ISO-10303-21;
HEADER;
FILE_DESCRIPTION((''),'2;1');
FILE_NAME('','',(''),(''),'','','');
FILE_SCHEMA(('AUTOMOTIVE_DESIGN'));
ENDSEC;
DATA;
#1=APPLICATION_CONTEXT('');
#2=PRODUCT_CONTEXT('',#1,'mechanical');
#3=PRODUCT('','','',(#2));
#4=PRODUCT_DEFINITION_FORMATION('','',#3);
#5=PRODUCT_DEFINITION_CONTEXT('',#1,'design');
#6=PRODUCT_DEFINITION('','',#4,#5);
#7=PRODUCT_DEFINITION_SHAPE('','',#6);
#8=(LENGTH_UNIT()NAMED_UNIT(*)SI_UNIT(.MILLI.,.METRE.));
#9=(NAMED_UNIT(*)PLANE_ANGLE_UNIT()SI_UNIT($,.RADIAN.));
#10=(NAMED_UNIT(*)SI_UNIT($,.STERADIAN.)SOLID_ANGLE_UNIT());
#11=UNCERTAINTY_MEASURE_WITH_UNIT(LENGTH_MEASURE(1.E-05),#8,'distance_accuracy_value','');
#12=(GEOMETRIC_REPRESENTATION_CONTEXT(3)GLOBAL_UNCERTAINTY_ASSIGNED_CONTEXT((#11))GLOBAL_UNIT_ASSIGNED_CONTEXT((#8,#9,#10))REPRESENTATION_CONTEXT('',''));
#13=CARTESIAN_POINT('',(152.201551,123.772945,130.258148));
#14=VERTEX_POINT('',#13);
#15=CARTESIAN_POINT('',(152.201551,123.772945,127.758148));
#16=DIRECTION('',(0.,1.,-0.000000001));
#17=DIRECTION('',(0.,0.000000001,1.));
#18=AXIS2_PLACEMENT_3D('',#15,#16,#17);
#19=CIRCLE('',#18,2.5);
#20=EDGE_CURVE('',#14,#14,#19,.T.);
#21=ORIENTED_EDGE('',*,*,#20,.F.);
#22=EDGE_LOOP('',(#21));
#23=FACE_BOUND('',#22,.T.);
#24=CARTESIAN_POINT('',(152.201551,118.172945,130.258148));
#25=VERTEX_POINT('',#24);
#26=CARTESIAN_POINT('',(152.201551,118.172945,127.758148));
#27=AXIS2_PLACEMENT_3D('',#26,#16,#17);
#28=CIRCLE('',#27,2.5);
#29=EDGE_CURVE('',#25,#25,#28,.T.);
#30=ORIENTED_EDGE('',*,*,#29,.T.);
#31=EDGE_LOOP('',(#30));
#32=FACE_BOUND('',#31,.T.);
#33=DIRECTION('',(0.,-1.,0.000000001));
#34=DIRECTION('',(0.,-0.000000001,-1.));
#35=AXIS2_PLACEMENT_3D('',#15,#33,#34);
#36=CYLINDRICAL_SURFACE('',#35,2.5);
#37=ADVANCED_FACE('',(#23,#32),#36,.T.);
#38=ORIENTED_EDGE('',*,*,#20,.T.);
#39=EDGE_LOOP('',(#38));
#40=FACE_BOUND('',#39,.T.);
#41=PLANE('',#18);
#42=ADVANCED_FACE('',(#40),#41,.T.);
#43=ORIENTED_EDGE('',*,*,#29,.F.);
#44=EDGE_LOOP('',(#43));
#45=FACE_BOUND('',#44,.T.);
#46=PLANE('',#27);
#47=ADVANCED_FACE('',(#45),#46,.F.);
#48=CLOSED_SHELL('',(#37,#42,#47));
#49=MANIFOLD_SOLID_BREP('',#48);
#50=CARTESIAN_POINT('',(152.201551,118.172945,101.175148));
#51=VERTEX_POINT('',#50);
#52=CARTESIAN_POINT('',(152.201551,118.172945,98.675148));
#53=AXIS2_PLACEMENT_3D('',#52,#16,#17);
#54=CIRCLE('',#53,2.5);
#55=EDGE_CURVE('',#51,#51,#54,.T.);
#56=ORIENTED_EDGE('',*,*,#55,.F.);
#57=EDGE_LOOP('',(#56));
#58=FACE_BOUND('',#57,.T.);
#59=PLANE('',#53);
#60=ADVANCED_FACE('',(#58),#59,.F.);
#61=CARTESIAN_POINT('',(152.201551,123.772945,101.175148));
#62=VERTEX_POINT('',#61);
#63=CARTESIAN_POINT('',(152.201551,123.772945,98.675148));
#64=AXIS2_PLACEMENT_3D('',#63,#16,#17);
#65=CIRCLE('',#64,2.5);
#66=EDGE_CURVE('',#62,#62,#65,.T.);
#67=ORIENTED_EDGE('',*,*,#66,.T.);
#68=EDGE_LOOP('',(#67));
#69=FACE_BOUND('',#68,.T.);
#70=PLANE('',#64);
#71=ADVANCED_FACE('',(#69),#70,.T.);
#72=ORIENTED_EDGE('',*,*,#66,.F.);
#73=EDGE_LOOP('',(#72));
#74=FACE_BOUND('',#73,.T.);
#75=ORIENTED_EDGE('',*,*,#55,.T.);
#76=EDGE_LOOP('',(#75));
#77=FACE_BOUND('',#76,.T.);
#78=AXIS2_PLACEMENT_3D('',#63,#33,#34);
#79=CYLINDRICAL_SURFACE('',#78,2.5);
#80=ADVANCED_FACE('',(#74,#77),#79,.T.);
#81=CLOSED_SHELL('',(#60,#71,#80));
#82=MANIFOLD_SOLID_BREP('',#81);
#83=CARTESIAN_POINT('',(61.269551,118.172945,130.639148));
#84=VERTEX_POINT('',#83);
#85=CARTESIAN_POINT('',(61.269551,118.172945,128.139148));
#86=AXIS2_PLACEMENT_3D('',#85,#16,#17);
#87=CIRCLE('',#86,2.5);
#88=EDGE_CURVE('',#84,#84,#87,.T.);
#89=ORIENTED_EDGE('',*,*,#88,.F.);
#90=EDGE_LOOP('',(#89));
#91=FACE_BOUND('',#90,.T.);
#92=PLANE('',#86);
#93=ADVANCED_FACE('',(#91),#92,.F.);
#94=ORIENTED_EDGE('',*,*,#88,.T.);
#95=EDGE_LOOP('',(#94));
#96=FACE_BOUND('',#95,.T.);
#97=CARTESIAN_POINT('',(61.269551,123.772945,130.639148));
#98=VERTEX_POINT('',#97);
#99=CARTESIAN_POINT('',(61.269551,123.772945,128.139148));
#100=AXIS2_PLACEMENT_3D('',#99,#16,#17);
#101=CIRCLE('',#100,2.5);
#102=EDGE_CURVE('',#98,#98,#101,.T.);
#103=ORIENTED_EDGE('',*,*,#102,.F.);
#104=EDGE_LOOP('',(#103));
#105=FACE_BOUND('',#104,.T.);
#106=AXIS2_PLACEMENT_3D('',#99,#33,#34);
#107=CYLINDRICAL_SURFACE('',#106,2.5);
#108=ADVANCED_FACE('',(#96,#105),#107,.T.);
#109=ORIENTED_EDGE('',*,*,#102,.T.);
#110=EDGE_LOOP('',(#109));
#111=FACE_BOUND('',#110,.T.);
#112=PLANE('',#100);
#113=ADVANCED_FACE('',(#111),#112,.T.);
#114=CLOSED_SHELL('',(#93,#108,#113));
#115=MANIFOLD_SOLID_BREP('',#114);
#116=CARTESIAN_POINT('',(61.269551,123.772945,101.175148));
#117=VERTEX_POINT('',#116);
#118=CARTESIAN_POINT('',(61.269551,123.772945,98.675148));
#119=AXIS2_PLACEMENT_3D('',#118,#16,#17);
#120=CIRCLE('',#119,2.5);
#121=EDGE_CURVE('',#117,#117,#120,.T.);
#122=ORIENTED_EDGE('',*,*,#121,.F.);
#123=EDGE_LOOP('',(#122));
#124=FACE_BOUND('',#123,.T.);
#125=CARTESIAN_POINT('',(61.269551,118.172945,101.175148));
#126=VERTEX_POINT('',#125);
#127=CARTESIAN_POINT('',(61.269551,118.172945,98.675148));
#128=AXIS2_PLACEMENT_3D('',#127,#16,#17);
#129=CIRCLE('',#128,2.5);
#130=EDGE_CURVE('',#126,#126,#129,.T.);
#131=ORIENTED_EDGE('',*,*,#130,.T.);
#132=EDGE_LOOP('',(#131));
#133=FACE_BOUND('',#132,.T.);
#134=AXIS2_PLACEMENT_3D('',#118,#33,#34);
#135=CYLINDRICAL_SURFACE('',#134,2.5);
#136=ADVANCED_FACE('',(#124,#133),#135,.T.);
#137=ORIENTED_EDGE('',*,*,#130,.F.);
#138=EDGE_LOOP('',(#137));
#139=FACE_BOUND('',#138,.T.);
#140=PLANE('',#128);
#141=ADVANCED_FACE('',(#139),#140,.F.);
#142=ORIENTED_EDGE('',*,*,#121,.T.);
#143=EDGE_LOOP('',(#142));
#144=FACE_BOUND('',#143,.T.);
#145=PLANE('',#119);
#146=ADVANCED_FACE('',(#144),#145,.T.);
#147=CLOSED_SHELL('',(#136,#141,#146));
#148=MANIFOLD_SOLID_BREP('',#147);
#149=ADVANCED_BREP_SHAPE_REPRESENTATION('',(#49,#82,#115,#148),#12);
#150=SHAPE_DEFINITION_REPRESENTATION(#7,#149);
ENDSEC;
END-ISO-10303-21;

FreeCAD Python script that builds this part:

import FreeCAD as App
import Part
import Sketcher

V = App.Vector

doc = App.newDocument("Part")
body = doc.addObject("PartDesign::Body", "Body")

# Sketch on XZ plane
sketch1 = body.newObject("Sketcher::SketchObject", "Sketch")
sketch1.AttachmentSupport = (doc.getObject("XZ_Plane"), [""])
sketch1.MapMode = "FlatFace"
sketch1.AttachmentOffset = App.Placement(V(0, 0, -118.172945), App.Rotation())
sketch1.addGeometry(Part.Circle(V(152.2, 98.7, 0), V(0, 0, 1), 2.5), False)
sketch1.addConstraint([
    Sketcher.Constraint("Diameter", 0, 5.0),
    Sketcher.Constraint("DistanceX", -1, 1, 0, 3, 152.201551),
    Sketcher.Constraint("DistanceY", -1, 1, 0, 3, 98.675148),
])
pad1 = body.newObject("PartDesign::Pad", "Pad")
pad1.Profile = sketch1
pad1.Length = 5.6
pad1.Reversed = True
body2 = doc.addObject("PartDesign::Body", "Body001")

# Sketch on XZ plane
sketch2 = body2.newObject("Sketcher::SketchObject", "Sketch001")
sketch2.AttachmentSupport = (doc.getObject("XZ_Plane001"), [""])
sketch2.MapMode = "FlatFace"
sketch2.AttachmentOffset = App.Placement(V(0, 0, -118.172945), App.Rotation())
sketch2.addGeometry(Part.Circle(V(61.3, 98.7, 0), V(0, 0, 1), 2.5), False)
sketch2.addConstraint([
    Sketcher.Constraint("Diameter", 0, 5.0),
    Sketcher.Constraint("DistanceX", -1, 1, 0, 3, 61.269551),
    Sketcher.Constraint("DistanceY", -1, 1, 0, 3, 98.675148),
])
pad2 = body2.newObject("PartDesign::Pad", "Pad001")
pad2.Profile = sketch2
pad2.Length = 5.6
pad2.Reversed = True
body3 = doc.addObject("PartDesign::Body", "Body002")

# Sketch on XZ plane
sketch3 = body3.newObject("Sketcher::SketchObject", "Sketch002")
sketch3.AttachmentSupport = (doc.getObject("XZ_Plane002"), [""])
sketch3.MapMode = "FlatFace"
sketch3.AttachmentOffset = App.Placement(V(0, 0, -118.172945), App.Rotation())
sketch3.addGeometry(Part.Circle(V(61.3, 128.1, 0), V(0, 0, 1), 2.5), False)
sketch3.addConstraint([
    Sketcher.Constraint("Diameter", 0, 5.0),
    Sketcher.Constraint("DistanceX", -1, 1, 0, 3, 61.269551),
    Sketcher.Constraint("DistanceY", -1, 1, 0, 3, 128.139148),
])
pad3 = body3.newObject("PartDesign::Pad", "Pad002")
pad3.Profile = sketch3
pad3.Length = 5.6
pad3.Reversed = True
body4 = doc.addObject("PartDesign::Body", "Body003")

# Sketch on XZ plane
sketch4 = body4.newObject("Sketcher::SketchObject", "Sketch003")
sketch4.AttachmentSupport = (doc.getObject("XZ_Plane003"), [""])
sketch4.MapMode = "FlatFace"
sketch4.AttachmentOffset = App.Placement(V(0, 0, -118.172945), App.Rotation())
sketch4.addGeometry(Part.Circle(V(152.2, 127.8, 0), V(0, 0, 1), 2.5), False)
sketch4.addConstraint([
    Sketcher.Constraint("Diameter", 0, 5.0),
    Sketcher.Constraint("DistanceX", -1, 1, 0, 3, 152.201551),
    Sketcher.Constraint("DistanceY", -1, 1, 0, 3, 127.758148),
])
pad4 = body4.newObject("PartDesign::Pad", "Pad003")
pad4.Profile = sketch4
pad4.Length = 5.6
pad4.Reversed = True

doc.recompute()
